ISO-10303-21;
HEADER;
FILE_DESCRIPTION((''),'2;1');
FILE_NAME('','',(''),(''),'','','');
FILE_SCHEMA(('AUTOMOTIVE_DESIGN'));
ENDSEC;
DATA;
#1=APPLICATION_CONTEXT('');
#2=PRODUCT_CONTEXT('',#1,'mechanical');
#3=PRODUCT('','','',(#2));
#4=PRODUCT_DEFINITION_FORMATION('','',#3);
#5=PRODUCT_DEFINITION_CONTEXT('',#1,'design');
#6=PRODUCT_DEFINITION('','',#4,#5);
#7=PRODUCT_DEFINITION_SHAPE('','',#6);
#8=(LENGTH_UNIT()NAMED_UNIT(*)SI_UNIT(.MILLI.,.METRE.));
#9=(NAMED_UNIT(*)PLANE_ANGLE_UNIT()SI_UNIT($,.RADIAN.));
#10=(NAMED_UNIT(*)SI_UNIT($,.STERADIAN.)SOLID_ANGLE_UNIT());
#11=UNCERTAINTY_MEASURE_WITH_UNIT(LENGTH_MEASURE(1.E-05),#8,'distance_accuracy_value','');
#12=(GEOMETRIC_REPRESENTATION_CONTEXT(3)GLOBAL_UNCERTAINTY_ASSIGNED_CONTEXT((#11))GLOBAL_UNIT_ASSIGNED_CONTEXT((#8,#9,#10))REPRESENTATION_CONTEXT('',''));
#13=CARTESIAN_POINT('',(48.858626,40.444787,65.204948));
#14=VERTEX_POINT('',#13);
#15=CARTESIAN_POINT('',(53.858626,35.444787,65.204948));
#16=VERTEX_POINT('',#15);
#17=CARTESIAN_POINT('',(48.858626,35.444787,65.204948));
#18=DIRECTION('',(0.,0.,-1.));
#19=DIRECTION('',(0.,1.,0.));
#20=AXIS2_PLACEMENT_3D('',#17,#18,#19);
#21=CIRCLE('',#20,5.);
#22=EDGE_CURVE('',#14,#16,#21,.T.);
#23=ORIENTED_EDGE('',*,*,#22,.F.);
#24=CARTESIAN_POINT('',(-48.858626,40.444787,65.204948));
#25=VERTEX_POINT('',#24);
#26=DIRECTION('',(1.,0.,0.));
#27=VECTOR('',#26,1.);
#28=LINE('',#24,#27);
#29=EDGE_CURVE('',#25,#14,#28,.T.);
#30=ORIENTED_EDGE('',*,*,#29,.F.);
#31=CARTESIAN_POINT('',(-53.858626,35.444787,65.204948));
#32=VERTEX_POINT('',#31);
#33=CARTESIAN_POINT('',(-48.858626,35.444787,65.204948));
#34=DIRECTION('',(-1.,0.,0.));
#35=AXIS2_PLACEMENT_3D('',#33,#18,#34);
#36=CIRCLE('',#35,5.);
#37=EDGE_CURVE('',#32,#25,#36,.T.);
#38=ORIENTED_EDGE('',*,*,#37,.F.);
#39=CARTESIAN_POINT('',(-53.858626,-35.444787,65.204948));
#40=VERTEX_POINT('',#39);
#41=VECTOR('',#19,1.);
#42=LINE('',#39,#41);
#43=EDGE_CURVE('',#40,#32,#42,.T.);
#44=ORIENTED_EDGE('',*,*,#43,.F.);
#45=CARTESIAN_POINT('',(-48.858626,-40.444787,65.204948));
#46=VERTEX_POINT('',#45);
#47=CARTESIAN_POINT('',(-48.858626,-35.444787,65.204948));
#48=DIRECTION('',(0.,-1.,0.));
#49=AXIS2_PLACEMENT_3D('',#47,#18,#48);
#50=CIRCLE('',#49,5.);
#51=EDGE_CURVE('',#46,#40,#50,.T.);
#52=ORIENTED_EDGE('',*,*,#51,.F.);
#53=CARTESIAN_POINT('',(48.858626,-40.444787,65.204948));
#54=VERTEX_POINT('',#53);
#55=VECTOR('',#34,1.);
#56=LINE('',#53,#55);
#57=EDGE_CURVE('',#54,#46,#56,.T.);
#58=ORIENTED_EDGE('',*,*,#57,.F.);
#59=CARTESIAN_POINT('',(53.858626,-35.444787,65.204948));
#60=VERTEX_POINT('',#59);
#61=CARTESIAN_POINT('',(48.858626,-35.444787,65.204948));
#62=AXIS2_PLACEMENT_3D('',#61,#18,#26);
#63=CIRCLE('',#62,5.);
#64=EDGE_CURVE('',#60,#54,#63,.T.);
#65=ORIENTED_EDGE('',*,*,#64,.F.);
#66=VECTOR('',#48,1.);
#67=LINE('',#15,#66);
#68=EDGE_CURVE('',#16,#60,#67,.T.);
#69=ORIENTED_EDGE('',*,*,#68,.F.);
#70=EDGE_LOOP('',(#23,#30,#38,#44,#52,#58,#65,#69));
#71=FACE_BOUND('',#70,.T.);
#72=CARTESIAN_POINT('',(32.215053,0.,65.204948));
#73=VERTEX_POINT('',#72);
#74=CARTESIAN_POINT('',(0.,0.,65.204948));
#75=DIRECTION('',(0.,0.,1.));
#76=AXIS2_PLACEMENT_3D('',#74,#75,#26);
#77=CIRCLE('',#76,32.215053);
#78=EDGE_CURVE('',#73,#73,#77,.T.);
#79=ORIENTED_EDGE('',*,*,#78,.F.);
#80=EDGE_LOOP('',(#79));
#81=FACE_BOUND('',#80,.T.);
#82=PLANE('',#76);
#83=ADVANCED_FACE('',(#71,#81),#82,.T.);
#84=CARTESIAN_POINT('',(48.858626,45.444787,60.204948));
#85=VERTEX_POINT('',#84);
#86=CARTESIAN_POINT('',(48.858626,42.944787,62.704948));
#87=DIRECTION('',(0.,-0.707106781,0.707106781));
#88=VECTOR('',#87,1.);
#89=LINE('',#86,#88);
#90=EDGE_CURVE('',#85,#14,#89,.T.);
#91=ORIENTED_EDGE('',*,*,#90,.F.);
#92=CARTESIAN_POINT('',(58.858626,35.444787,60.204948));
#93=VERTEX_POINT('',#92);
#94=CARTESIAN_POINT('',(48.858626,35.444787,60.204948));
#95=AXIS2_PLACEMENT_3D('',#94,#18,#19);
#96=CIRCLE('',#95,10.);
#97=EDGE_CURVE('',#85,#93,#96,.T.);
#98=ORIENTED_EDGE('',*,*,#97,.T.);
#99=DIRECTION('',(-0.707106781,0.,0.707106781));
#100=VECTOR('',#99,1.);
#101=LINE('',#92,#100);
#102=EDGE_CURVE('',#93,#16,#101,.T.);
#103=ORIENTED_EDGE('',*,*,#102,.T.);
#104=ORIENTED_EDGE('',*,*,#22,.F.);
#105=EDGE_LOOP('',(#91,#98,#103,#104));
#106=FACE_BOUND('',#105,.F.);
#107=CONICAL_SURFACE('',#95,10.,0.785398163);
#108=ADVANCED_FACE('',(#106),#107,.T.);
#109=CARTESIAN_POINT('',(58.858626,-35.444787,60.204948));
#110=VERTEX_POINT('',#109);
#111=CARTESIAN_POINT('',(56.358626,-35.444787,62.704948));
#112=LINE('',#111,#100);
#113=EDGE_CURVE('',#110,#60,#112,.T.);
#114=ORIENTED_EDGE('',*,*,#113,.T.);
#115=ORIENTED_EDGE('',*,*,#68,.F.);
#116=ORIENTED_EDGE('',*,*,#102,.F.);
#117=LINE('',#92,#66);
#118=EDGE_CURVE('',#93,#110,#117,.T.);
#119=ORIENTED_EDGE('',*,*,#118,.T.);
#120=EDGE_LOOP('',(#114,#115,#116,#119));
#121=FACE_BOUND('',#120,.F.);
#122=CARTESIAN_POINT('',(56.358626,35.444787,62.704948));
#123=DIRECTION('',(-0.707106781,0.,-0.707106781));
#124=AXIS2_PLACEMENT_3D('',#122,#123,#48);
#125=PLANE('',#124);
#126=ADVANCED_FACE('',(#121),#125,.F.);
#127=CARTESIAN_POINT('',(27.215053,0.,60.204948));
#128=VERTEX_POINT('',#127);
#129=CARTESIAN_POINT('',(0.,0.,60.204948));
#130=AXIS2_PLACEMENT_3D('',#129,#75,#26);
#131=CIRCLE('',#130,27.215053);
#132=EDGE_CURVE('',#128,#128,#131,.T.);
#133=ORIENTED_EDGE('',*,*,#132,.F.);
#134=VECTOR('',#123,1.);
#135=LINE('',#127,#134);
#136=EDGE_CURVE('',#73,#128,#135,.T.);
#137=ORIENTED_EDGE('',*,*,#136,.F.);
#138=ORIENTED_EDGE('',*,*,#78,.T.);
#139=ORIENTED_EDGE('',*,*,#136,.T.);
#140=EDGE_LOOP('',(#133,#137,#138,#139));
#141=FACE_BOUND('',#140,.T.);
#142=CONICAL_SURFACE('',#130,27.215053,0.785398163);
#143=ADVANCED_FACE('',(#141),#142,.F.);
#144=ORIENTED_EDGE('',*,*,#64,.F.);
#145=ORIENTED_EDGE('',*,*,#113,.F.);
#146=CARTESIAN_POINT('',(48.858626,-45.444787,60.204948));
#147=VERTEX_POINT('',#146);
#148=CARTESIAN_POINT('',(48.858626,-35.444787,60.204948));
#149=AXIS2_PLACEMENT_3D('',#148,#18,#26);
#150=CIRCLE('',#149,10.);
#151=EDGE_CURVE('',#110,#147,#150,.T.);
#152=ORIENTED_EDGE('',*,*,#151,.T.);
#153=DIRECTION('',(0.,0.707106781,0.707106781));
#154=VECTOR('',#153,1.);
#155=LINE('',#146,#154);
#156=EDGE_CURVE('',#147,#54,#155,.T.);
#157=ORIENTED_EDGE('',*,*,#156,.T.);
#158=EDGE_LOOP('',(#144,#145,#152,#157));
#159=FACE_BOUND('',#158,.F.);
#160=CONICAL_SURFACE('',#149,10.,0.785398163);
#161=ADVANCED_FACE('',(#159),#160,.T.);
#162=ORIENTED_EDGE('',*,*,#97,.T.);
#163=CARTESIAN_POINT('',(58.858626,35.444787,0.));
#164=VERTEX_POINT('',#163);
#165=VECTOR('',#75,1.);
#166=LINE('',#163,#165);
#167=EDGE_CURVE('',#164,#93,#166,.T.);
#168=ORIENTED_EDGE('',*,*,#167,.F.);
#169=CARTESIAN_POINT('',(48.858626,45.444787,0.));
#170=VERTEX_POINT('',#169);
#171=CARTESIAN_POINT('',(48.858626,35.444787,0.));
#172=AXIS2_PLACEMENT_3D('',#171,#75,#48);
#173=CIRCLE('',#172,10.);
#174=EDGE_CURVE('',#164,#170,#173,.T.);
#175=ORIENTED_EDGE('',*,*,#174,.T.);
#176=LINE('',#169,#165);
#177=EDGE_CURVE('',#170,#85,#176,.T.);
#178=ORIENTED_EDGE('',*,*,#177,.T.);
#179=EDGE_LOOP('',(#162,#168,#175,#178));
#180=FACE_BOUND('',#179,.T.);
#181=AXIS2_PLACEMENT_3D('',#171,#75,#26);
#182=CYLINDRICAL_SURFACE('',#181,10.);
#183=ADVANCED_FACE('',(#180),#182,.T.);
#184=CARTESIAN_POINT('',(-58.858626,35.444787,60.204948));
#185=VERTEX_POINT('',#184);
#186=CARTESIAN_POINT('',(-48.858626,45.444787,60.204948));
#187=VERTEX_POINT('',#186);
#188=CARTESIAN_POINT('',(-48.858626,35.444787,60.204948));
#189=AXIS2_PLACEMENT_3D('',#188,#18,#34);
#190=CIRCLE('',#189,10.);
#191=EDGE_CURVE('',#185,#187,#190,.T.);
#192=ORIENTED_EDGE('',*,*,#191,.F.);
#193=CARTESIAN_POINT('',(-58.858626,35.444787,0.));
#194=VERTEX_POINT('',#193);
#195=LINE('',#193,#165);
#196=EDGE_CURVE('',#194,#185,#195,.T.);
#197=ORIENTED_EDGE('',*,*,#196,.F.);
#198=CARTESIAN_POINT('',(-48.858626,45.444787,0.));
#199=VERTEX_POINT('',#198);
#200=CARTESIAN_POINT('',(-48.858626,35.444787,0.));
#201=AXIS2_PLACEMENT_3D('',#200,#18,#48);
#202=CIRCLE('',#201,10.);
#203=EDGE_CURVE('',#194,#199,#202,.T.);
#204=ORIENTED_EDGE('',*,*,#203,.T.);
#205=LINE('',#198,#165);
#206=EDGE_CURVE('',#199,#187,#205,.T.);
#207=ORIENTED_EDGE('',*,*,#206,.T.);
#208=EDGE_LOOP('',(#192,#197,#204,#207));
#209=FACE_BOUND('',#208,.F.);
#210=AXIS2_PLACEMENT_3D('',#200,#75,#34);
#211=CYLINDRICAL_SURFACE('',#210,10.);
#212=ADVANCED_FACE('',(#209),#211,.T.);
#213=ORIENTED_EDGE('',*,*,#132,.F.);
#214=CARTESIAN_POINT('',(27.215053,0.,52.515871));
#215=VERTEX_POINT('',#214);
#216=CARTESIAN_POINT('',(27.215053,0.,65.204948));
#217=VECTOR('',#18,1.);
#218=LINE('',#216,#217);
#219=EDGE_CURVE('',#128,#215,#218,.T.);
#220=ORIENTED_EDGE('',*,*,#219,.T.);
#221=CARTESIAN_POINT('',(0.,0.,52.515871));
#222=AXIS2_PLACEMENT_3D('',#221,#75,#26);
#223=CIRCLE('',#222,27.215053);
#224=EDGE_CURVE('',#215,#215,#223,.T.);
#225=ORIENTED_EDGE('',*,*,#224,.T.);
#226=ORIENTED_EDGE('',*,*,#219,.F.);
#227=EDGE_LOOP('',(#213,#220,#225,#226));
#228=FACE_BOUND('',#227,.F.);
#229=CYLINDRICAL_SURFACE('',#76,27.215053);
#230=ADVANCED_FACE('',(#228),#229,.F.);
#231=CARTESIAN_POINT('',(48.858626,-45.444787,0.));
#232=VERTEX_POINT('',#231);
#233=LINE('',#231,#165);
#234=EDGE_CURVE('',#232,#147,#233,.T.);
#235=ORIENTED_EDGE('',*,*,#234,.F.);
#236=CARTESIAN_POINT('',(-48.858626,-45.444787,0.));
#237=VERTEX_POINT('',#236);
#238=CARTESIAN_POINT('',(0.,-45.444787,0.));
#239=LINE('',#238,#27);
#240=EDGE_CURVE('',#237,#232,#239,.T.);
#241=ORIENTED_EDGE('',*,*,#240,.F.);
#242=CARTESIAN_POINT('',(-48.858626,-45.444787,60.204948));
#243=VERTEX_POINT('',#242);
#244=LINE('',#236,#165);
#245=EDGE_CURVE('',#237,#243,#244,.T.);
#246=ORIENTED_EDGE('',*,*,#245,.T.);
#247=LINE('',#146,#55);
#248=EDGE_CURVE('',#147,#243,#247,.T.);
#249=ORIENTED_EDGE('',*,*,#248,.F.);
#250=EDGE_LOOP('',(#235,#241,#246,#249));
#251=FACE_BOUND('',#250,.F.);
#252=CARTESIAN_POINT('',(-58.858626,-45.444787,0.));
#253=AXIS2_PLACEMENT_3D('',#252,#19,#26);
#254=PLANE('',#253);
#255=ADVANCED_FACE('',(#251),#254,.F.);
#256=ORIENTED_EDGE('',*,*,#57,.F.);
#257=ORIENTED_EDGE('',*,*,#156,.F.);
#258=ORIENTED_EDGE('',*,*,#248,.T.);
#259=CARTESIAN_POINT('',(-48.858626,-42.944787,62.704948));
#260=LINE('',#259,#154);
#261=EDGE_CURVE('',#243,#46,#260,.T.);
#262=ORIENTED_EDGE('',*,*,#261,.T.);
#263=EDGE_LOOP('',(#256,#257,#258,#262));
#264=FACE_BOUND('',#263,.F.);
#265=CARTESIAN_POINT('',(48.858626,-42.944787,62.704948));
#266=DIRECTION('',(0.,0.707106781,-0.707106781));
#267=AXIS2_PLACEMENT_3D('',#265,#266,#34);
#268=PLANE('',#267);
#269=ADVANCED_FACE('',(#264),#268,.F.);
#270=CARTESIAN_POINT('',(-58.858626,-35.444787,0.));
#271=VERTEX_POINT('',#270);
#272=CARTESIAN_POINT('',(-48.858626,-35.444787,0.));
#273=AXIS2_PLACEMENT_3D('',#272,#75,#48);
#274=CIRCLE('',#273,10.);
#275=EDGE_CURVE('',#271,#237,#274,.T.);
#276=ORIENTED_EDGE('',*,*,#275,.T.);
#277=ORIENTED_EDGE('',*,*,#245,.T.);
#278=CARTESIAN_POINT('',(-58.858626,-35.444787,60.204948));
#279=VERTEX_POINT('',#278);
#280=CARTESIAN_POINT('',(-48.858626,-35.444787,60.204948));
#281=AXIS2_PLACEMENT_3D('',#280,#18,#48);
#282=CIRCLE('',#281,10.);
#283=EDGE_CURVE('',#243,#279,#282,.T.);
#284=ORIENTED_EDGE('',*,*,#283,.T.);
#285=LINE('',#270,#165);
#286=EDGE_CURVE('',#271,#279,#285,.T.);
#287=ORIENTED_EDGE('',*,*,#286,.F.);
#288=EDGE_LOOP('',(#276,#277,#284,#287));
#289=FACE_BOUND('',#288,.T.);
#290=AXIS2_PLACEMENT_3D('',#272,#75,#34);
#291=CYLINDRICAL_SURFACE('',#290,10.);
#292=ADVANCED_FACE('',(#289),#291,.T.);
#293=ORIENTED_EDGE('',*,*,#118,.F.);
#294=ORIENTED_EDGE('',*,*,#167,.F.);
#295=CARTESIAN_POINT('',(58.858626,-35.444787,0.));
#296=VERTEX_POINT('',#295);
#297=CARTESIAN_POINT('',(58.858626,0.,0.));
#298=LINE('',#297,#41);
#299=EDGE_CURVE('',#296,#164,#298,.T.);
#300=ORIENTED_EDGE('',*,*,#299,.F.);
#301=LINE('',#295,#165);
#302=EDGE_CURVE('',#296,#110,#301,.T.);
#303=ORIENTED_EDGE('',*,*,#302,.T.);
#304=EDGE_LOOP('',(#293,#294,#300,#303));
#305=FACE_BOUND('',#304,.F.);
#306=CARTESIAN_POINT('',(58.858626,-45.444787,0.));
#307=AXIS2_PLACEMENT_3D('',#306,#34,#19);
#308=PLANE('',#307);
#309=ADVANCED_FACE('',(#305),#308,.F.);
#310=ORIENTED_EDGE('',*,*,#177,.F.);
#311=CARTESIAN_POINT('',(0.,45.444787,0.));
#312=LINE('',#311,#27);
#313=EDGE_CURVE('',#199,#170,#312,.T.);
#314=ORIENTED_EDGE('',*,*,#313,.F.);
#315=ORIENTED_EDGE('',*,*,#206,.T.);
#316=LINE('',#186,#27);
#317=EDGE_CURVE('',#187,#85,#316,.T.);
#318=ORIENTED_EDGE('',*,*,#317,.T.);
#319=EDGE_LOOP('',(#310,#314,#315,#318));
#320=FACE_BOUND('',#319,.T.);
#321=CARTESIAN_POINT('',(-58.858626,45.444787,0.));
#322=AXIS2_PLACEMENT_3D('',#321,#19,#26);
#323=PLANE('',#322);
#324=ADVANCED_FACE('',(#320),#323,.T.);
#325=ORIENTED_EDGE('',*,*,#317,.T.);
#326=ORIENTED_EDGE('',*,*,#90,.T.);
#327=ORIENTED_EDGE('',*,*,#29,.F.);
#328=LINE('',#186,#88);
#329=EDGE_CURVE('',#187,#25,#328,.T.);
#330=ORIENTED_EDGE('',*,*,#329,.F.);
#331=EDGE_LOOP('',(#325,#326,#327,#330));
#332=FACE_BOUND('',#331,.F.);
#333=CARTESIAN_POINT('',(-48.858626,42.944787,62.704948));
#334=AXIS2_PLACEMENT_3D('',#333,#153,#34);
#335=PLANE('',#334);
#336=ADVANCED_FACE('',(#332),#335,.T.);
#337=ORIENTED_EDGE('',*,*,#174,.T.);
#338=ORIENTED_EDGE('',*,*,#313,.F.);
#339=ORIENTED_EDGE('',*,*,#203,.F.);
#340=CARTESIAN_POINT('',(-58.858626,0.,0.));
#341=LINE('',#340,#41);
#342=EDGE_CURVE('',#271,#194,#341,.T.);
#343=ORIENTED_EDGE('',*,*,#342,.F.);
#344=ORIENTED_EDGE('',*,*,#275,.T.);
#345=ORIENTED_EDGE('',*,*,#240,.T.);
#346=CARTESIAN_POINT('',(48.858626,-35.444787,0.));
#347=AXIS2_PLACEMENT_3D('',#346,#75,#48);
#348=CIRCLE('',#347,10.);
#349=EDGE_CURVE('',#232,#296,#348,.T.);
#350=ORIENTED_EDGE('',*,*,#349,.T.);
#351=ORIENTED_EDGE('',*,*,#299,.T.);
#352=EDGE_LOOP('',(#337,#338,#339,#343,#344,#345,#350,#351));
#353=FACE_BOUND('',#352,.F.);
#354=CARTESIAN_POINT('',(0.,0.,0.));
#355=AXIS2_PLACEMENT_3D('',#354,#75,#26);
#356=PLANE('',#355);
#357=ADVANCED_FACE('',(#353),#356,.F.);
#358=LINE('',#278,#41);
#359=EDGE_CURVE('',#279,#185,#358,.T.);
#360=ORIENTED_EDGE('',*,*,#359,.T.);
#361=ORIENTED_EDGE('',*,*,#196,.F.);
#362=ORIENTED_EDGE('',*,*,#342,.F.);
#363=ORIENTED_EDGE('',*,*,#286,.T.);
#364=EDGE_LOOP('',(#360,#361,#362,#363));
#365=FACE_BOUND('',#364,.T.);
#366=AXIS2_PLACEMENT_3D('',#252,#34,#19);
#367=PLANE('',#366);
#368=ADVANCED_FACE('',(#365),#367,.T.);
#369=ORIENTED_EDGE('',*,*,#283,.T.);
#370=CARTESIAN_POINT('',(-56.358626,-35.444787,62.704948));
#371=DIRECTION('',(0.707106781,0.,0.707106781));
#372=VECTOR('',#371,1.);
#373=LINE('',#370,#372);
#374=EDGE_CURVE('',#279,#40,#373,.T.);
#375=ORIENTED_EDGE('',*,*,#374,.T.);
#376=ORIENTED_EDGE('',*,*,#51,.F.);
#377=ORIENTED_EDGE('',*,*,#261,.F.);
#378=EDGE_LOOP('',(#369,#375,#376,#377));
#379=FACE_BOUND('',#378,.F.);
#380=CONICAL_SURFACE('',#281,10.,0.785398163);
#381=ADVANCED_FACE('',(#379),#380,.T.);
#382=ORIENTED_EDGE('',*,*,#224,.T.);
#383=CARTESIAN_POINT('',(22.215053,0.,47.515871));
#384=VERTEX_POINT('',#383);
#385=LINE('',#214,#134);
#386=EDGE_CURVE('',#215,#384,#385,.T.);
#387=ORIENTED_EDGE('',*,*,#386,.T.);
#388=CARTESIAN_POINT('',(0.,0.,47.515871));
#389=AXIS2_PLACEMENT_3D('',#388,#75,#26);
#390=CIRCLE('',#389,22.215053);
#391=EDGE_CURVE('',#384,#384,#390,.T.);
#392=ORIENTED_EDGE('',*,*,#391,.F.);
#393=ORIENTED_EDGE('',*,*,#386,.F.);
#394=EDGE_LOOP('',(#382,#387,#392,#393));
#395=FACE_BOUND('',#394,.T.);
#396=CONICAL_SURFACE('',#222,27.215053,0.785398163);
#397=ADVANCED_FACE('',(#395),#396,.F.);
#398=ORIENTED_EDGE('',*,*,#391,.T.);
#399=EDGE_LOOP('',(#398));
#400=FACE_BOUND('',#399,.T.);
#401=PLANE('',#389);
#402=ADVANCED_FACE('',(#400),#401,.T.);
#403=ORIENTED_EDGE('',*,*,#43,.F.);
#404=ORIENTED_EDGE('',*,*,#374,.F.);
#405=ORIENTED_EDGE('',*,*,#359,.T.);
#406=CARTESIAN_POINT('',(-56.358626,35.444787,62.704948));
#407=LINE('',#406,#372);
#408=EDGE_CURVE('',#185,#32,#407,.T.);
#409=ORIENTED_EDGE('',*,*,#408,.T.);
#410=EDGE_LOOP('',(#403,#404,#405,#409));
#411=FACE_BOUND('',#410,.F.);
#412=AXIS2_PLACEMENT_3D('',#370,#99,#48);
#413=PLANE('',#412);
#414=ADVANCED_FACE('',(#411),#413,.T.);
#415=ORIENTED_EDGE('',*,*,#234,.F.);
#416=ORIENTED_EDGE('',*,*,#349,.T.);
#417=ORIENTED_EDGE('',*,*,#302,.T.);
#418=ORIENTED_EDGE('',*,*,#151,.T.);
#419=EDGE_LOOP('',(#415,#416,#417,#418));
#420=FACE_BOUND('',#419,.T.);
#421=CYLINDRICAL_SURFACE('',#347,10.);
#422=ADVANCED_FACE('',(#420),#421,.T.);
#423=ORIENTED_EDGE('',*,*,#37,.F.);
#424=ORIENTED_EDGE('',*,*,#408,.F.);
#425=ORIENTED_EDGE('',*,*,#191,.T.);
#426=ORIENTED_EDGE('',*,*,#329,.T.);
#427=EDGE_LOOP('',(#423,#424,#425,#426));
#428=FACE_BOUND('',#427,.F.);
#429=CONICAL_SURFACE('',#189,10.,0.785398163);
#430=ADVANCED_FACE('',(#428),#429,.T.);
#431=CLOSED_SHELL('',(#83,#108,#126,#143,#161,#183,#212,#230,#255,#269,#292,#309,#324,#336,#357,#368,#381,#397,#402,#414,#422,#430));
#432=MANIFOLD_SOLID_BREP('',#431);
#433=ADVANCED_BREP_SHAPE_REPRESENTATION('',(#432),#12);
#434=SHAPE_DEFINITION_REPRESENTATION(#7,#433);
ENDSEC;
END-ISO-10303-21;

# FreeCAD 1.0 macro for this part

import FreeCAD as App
import Part
import Sketcher


def edges_at(feature, points):
    """Names of the edges that pass closest to the given points."""
    edges = feature.Shape.Edges
    near = lambda p: min(range(len(edges)), key=lambda i: edges[i].distToShape(Part.Vertex(*p))[0])
    return sorted({f"Edge{near(p) + 1}" for p in points})

doc = App.newDocument("Part")
body = doc.addObject("PartDesign::Body", "Body")

sketch1 = body.newObject("Sketcher::SketchObject", "Sketch")
sketch1.AttachmentSupport = (doc.getObject("XY_Plane"), [""])
sketch1.MapMode = "FlatFace"
sketch1.addGeometry(Part.LineSegment(App.Vector(-58.858626, 45.444787, 0), App.Vector(-58.858626, -45.444787, 0)), False)
sketch1.addGeometry(Part.LineSegment(App.Vector(-58.858626, -45.444787, 0), App.Vector(58.858626, -45.444787, 0)), False)
sketch1.addGeometry(Part.LineSegment(App.Vector(58.858626, -45.444787, 0), App.Vector(58.858626, 45.444787, 0)), False)
sketch1.addGeometry(Part.LineSegment(App.Vector(58.858626, 45.444787, 0), App.Vector(-58.858626, 45.444787, 0)), False)
sketch1.addConstraint(Sketcher.Constraint("Coincident", 0, 2, 1, 1))
sketch1.addConstraint(Sketcher.Constraint("Coincident", 1, 2, 2, 1))
sketch1.addConstraint(Sketcher.Constraint("Coincident", 2, 2, 3, 1))
sketch1.addConstraint(Sketcher.Constraint("Coincident", 3, 2, 0, 1))
sketch1.addConstraint(Sketcher.Constraint("Vertical", 0))
sketch1.addConstraint(Sketcher.Constraint("Horizontal", 1))
sketch1.addConstraint(Sketcher.Constraint("Vertical", 2))
sketch1.addConstraint(Sketcher.Constraint("Horizontal", 3))
sketch1.addConstraint(Sketcher.Constraint("Symmetric", 0, 2, 2, 2, -1, 1))
sketch1.addConstraint(Sketcher.Constraint("DistanceX", 1, 1, 1, 2, 117.717252))
sketch1.addConstraint(Sketcher.Constraint("DistanceY", 0, 2, 0, 1, 90.889574))
pad1 = body.newObject("PartDesign::Pad", "Pad")
pad1.Profile = sketch1
pad1.Length = 65.204948
doc.recompute()

fillet = body.newObject("PartDesign::Fillet", "Fillet")
fillet.Base = (pad1, edges_at(pad1, [
    (-58.859, 45.445, 32.602),
    (-58.859, -45.445, 32.602),
    (58.859, -45.445, 32.602),
    (58.859, 45.445, 32.602),
]))
fillet.Radius = 10
doc.recompute()

chamfer = body.newObject("PartDesign::Chamfer", "Chamfer")
chamfer.Base = (fillet, edges_at(fillet, [
    (-58.859, 0, 65.205),
    (-55.93, 42.516, 65.205),
    (-55.93, -42.516, 65.205),
    (0, 45.445, 65.205),
    (0, -45.445, 65.205),
    (55.93, 42.516, 65.205),
    (55.93, -42.516, 65.205),
    (58.859, 0, 65.205),
]))
chamfer.Size = 5

sketch2 = body.newObject("Sketcher::SketchObject", "Sketch001")
sketch2.AttachmentSupport = (doc.getObject("XY_Plane"), [""])
sketch2.MapMode = "FlatFace"
sketch2.AttachmentOffset = App.Placement(App.Vector(0, 0, 65.204948), App.Rotation())
sketch2.addGeometry(Part.Circle(App.Vector(0, 0, 0), App.Vector(0, 0, 1), 27.215053), False)
sketch2.addConstraint(Sketcher.Constraint("Coincident", 0, 3, -1, 1))
sketch2.addConstraint(Sketcher.Constraint("Diameter", 0, 54.430106))
pocket1 = body.newObject("PartDesign::Pocket", "Pocket")
pocket1.Profile = sketch2
pocket1.Length = 17.689077
doc.recompute()

chamfer2 = body.newObject("PartDesign::Chamfer", "Chamfer001")
chamfer2.Base = (pocket1, edges_at(pocket1, [(27.215, 0, 56.36), (-27.215, 0, 65.205), (-27.215, 0, 47.516)]))
chamfer2.Size = 5

doc.recompute()
